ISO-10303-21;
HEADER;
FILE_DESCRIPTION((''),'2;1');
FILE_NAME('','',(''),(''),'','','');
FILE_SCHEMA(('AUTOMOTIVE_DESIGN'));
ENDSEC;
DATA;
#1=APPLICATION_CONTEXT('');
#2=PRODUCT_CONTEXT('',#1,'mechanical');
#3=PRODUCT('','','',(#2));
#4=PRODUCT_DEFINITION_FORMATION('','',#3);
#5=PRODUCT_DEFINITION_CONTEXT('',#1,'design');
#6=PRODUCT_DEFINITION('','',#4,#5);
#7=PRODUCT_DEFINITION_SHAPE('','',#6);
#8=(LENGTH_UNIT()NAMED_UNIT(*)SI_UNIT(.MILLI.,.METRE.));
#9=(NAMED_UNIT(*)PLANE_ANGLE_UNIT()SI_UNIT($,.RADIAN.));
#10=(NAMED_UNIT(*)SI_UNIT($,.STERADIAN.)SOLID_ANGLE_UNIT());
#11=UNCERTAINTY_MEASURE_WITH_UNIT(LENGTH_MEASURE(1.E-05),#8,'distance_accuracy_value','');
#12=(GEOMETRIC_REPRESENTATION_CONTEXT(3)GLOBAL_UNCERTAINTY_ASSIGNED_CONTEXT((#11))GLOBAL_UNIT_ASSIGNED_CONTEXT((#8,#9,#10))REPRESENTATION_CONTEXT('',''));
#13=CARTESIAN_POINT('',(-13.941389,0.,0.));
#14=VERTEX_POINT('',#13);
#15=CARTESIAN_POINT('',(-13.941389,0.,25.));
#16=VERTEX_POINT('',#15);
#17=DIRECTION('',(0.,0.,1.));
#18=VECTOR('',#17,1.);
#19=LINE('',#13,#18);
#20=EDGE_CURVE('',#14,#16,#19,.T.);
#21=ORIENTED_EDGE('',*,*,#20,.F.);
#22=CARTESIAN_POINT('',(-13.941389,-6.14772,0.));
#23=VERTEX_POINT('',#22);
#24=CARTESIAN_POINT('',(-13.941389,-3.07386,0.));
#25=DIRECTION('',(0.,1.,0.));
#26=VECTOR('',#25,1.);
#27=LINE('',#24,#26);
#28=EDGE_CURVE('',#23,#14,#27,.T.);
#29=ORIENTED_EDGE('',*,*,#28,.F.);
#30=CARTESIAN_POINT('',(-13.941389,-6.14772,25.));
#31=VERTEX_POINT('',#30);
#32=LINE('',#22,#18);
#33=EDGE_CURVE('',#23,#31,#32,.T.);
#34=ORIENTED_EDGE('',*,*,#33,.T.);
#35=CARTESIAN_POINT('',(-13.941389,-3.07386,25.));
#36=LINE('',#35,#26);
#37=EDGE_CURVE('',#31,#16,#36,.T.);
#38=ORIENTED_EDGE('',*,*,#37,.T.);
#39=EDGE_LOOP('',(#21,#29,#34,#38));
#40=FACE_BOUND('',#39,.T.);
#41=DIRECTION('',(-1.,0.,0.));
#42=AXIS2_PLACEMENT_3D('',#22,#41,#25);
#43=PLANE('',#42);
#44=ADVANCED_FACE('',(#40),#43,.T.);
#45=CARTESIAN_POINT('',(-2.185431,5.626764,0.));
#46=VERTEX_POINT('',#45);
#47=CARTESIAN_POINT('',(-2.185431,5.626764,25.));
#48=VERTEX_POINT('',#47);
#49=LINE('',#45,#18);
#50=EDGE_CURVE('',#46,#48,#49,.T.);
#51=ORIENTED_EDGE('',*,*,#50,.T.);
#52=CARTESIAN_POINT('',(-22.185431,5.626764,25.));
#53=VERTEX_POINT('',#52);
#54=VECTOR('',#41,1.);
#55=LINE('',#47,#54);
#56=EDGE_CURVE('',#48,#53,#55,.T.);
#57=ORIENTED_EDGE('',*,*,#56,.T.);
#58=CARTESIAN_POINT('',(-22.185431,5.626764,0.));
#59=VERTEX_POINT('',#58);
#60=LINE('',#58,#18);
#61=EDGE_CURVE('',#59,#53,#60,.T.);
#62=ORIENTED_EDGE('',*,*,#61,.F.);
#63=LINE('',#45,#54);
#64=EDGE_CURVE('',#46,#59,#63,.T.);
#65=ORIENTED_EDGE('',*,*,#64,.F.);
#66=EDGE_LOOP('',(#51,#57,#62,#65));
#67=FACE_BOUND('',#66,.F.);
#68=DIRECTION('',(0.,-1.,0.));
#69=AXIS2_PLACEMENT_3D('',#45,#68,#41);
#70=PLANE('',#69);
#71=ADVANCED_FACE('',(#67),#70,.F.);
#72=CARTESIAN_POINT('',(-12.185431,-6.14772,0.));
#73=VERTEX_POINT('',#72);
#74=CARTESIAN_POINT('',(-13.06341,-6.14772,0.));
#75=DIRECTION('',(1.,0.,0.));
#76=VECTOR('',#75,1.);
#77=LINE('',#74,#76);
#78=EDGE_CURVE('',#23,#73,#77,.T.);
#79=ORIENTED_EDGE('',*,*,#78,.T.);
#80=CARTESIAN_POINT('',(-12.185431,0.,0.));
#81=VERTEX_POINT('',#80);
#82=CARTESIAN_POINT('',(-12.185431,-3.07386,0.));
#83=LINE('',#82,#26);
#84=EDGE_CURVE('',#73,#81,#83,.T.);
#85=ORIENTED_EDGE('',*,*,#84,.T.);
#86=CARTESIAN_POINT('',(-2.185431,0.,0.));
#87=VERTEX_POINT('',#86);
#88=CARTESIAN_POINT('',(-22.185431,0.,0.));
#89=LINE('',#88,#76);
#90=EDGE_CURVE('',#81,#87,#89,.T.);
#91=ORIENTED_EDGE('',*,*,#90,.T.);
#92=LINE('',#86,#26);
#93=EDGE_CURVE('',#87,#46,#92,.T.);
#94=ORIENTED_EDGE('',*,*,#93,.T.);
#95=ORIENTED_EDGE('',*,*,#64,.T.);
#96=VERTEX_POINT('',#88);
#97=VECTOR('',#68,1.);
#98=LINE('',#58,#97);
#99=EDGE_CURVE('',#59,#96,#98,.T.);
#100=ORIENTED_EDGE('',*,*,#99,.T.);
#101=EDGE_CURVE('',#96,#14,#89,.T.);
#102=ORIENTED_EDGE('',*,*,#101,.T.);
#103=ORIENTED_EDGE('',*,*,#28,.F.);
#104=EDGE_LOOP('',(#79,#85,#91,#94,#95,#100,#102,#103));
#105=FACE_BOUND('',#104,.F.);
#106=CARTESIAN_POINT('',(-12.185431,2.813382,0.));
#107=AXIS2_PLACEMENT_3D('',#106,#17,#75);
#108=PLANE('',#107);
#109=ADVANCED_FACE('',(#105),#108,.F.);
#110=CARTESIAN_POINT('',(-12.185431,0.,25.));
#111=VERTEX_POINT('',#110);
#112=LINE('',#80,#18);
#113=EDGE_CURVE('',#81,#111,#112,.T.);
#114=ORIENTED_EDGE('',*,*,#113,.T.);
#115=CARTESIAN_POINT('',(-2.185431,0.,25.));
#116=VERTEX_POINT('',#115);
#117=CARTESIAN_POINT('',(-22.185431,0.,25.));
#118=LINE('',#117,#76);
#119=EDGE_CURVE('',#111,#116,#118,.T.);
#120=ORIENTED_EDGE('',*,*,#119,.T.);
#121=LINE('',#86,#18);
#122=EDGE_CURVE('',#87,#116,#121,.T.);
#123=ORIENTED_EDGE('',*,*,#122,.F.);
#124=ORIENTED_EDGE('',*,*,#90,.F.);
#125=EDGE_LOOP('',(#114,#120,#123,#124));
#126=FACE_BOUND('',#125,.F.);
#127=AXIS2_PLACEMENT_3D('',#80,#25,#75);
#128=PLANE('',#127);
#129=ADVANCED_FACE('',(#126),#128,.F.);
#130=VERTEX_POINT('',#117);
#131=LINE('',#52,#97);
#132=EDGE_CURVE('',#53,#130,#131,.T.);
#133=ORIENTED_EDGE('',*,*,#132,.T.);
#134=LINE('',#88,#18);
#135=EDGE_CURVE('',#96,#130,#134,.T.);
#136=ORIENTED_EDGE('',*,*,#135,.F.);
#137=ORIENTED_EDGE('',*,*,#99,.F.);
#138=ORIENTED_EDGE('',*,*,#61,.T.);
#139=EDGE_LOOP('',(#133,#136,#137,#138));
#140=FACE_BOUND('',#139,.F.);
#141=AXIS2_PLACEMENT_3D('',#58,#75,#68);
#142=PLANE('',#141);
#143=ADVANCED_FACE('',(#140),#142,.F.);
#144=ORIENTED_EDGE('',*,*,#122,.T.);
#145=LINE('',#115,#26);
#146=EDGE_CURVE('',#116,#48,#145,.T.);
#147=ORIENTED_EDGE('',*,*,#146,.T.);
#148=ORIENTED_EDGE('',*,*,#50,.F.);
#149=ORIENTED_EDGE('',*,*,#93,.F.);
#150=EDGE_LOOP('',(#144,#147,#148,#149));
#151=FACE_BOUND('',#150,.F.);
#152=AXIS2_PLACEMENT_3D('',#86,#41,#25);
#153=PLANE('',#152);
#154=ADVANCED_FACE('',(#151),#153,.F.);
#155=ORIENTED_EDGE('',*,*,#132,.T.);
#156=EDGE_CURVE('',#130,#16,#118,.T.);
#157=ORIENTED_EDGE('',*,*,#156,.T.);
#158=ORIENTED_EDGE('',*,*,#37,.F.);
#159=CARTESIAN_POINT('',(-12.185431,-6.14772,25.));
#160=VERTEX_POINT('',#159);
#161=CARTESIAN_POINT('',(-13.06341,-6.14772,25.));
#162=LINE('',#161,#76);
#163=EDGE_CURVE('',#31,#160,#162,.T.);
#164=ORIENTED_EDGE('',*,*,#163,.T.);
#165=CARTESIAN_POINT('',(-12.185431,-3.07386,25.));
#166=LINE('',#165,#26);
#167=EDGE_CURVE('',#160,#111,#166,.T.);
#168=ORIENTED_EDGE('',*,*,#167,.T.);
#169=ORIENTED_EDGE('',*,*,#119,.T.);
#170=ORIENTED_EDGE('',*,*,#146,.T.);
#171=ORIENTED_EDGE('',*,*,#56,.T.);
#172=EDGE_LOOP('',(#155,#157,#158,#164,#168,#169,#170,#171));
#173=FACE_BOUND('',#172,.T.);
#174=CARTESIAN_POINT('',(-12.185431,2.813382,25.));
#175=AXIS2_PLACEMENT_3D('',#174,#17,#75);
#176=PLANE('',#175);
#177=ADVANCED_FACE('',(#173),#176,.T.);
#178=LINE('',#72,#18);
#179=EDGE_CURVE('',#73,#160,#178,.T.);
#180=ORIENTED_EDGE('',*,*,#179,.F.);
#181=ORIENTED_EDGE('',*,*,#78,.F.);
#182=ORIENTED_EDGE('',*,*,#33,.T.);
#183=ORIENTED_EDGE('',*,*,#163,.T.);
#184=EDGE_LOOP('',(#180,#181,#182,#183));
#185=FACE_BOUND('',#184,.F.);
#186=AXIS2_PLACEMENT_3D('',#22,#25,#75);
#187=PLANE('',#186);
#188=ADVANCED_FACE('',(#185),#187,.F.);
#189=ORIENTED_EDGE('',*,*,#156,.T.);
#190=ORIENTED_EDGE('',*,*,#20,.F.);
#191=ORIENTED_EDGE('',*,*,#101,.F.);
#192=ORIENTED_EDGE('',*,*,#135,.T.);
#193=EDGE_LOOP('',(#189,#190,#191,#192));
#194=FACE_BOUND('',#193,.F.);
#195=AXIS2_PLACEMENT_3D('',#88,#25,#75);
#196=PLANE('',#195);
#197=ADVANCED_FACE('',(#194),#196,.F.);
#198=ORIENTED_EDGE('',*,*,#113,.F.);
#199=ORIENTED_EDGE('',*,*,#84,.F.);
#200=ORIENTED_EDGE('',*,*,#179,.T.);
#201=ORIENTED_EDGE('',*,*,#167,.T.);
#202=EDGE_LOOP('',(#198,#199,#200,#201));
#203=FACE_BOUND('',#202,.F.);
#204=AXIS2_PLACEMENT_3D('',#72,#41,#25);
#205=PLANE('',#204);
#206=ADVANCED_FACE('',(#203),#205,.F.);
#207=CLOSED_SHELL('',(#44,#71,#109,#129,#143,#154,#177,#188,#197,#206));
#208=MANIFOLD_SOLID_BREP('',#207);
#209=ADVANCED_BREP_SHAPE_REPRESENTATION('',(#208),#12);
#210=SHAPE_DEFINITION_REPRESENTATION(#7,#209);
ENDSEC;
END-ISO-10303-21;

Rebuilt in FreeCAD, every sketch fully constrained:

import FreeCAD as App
import Part
import Sketcher

V = App.Vector

doc = App.newDocument("Part")
body = doc.addObject("PartDesign::Body", "Body")

# Sketch on XY plane
sketch1 = doc.addObject("Sketcher::SketchObject", "Sketch")
body.addObject(sketch1)
sketch1.AttachmentSupport = (doc.XY_Plane, [""])
sketch1.MapMode = "FlatFace"
sketch1.addGeometry(Part.LineSegment(V(-2.185431, 0, 0), V(-2.185431, 5.626764, 0)), False)
sketch1.addGeometry(Part.LineSegment(V(-2.185431, 5.626764, 0), V(-22.185431, 5.626764, 0)), False)
sketch1.addGeometry(Part.LineSegment(V(-22.185431, 5.626764, 0), V(-22.185431, 0, 0)), False)
sketch1.addGeometry(Part.LineSegment(V(-22.185431, 0, 0), V(-13.941389, 0, 0)), False)
sketch1.addGeometry(Part.LineSegment(V(-13.941389, 0, 0), V(-13.941389, -6.14772, 0)), False)
sketch1.addGeometry(Part.LineSegment(V(-13.941389, -6.14772, 0), V(-12.185431, -6.14772, 0)), False)
sketch1.addGeometry(Part.LineSegment(V(-12.185431, -6.14772, 0), V(-12.185431, 0, 0)), False)
sketch1.addGeometry(Part.LineSegment(V(-12.185431, 0, 0), V(-2.185431, 0, 0)), False)
sketch1.addConstraint(Sketcher.Constraint("Coincident", 0, 2, 1, 1))
sketch1.addConstraint(Sketcher.Constraint("Coincident", 1, 2, 2, 1))
sketch1.addConstraint(Sketcher.Constraint("Coincident", 2, 2, 3, 1))
sketch1.addConstraint(Sketcher.Constraint("Coincident", 3, 2, 4, 1))
sketch1.addConstraint(Sketcher.Constraint("Coincident", 4, 2, 5, 1))
sketch1.addConstraint(Sketcher.Constraint("Coincident", 5, 2, 6, 1))
sketch1.addConstraint(Sketcher.Constraint("Coincident", 6, 2, 7, 1))
sketch1.addConstraint(Sketcher.Constraint("Coincident", 7, 2, 0, 1))
sketch1.addConstraint(Sketcher.Constraint("Vertical", 0))
sketch1.addConstraint(Sketcher.Constraint("Horizontal", 1))
sketch1.addConstraint(Sketcher.Constraint("Vertical", 2))
sketch1.addConstraint(Sketcher.Constraint("Horizontal", 3))
sketch1.addConstraint(Sketcher.Constraint("Vertical", 4))
sketch1.addConstraint(Sketcher.Constraint("Horizontal", 5))
sketch1.addConstraint(Sketcher.Constraint("Vertical", 6))
sketch1.addConstraint(Sketcher.Constraint("Horizontal", 7))
sketch1.addConstraint(Sketcher.Constraint("PointOnObject", 2, 2, -1))
sketch1.addConstraint(Sketcher.Constraint("PointOnObject", 6, 2, -1))
sketch1.addConstraint(Sketcher.Constraint("DistanceX", 1, 2, 1, 1, 20.0))
sketch1.addConstraint(Sketcher.Constraint("DistanceX", 7, 1, 7, 2, 10.0))
sketch1.addConstraint(Sketcher.Constraint("DistanceX", 3, 1, 3, 2, 8.244042))
sketch1.addConstraint(Sketcher.Constraint("DistanceY", 4, 2, 4, 1, 6.14772))
sketch1.addConstraint(Sketcher.Constraint("DistanceY", 0, 1, 0, 2, 5.626764))
sketch1.addConstraint(Sketcher.Constraint("DistanceX", 0, 2, -1, 1, 2.185431))
pad1 = doc.addObject("PartDesign::Pad", "Pad")
body.addObject(pad1)
pad1.Profile = sketch1
pad1.Length = 25

doc.recompute()
